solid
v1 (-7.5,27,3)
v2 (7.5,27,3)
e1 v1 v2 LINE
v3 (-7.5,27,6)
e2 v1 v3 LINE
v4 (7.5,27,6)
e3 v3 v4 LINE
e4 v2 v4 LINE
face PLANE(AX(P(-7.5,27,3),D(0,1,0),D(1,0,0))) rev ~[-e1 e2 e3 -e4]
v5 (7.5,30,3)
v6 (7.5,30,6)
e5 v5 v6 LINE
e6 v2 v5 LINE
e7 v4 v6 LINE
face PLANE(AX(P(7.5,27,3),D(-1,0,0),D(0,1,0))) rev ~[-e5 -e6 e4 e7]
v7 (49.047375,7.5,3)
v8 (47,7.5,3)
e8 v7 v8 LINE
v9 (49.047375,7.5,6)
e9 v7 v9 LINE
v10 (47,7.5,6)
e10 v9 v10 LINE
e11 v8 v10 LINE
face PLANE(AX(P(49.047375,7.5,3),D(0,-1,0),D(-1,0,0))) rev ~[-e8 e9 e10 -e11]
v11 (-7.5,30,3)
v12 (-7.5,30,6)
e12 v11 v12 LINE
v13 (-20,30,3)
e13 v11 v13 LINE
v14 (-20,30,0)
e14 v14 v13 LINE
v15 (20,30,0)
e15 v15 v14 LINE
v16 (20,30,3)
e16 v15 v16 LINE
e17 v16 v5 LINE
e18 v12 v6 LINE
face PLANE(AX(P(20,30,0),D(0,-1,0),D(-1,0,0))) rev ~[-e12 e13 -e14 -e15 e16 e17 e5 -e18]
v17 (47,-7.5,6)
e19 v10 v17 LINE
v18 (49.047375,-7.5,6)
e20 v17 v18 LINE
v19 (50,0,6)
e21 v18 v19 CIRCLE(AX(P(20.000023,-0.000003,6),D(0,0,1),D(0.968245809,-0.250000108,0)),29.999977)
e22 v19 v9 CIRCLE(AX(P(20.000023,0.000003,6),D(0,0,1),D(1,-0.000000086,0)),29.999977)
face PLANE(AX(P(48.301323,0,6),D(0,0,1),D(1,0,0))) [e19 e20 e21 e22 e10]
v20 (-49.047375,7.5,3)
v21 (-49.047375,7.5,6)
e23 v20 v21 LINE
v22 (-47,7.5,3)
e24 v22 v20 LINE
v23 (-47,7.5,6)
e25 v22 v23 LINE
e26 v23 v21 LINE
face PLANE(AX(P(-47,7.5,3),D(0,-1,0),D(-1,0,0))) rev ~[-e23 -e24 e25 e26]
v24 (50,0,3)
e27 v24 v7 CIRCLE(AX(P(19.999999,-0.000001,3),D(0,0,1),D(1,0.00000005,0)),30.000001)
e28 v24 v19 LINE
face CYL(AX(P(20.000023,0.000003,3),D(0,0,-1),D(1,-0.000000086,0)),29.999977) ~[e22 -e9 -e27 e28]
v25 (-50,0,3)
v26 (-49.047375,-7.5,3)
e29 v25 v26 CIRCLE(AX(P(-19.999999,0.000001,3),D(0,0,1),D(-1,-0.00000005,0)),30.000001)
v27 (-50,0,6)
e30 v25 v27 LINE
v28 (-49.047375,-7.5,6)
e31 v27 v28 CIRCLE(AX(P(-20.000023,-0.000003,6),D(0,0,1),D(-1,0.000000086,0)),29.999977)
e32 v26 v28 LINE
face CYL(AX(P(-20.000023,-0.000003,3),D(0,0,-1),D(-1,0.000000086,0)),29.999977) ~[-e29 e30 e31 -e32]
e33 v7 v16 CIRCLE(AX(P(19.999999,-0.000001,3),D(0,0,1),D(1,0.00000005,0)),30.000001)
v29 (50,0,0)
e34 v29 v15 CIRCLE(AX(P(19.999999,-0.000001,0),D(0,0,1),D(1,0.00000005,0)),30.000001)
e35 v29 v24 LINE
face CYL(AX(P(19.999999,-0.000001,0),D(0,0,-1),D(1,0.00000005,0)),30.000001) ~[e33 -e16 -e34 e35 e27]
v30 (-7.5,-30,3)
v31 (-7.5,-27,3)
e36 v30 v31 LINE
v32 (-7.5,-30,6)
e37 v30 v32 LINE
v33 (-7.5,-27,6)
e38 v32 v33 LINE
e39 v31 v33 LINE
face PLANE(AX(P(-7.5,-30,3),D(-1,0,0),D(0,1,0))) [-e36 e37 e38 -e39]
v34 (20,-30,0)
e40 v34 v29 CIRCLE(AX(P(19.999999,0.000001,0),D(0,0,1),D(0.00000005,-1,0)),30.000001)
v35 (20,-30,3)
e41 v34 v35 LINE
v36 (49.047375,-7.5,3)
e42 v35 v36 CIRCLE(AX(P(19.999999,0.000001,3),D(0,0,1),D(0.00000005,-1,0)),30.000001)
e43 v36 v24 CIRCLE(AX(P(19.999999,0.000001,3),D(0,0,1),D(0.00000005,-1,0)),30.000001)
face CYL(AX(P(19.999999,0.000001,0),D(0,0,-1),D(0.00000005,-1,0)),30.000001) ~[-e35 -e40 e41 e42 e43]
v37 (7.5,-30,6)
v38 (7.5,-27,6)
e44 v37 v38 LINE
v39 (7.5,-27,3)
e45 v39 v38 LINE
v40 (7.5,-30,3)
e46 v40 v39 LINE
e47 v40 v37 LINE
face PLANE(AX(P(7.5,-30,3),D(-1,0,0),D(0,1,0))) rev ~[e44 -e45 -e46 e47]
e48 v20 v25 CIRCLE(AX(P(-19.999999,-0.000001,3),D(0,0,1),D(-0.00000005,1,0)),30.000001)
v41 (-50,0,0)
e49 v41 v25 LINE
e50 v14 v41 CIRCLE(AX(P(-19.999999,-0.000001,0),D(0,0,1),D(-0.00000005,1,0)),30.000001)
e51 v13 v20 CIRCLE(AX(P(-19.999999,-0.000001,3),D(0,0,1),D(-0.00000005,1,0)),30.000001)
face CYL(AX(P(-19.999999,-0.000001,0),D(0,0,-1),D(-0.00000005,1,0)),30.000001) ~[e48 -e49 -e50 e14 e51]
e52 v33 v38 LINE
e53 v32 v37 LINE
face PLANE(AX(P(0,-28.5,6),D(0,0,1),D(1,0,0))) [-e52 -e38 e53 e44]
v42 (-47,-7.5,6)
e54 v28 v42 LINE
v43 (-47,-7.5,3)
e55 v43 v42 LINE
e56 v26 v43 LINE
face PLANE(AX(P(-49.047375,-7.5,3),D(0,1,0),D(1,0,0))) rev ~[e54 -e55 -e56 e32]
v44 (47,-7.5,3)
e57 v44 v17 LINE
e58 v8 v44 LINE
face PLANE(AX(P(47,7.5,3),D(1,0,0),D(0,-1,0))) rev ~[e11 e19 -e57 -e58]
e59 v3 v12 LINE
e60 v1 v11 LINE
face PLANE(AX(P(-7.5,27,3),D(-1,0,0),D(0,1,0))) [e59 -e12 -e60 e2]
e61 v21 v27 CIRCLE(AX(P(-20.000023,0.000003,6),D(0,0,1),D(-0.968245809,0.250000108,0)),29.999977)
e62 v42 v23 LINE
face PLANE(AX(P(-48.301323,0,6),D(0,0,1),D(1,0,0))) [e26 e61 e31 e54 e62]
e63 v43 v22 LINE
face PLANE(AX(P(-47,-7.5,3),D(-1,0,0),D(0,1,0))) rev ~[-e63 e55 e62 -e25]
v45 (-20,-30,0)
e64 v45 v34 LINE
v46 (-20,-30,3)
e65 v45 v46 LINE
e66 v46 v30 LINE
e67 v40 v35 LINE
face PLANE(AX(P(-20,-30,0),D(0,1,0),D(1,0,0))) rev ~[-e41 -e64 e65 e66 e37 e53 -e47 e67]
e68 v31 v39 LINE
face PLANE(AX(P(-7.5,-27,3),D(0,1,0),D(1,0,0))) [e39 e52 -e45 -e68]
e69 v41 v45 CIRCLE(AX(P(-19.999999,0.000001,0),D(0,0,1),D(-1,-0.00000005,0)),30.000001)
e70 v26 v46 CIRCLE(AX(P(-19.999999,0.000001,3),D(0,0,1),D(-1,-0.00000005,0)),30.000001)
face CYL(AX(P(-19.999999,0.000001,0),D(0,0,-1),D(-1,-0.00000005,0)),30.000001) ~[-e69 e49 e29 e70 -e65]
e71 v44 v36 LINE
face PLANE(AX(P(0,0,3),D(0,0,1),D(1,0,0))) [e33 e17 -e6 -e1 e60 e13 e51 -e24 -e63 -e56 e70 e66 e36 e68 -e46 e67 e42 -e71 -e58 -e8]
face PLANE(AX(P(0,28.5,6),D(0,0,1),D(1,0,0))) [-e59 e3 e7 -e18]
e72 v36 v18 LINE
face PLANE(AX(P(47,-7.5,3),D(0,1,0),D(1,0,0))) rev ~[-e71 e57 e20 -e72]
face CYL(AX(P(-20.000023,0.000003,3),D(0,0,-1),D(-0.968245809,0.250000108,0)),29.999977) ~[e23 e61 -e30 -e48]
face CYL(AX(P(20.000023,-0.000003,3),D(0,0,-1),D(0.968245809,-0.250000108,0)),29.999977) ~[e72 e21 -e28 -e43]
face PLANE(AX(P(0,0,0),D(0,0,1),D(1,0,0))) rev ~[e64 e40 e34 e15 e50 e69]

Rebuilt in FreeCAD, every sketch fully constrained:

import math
import FreeCAD as App
import Part
import Sketcher

V = App.Vector
Q = App.Units.Quantity

doc = App.newDocument("Part")
body = doc.addObject("PartDesign::Body", "Body")

# Sketch on XY plane
sketch1 = doc.addObject("Sketcher::SketchObject", "Sketch")
body.addObject(sketch1)
sketch1.AttachmentSupport = (doc.XY_Plane, [""])
sketch1.MapMode = "FlatFace"
sketch1.addGeometry(Part.LineSegment(V(20, 30, 0), V(-20, 30, 0)), False)
sketch1.addGeometry(Part.ArcOfCircle(Part.Circle(V(-19.999999, -0.000001, 0), V(0, 0, 1), 30.000001), math.radians(90.000003), math.radians(179.999997)), False)
sketch1.addGeometry(Part.ArcOfCircle(Part.Circle(V(-19.999999, 0.000001, 0), V(0, 0, 1), 30.000001), math.radians(-179.999997), math.radians(-90.000003)), False)
sketch1.addGeometry(Part.LineSegment(V(-20, -30, 0), V(20, -30, 0)), False)
sketch1.addGeometry(Part.ArcOfCircle(Part.Circle(V(19.999999, 0.000001, 0), V(0, 0, 1), 30.000001), math.radians(-89.999997), math.radians(-0.000003)), False)
sketch1.addGeometry(Part.ArcOfCircle(Part.Circle(V(19.999999, -0.000001, 0), V(0, 0, 1), 30.000001), math.radians(0.000003), math.radians(89.999997)), False)
sketch1.addConstraint(Sketcher.Constraint("Tangent", 0, 2, 1, 1))
sketch1.addConstraint(Sketcher.Constraint("Tangent", 1, 2, 2, 1))
sketch1.addConstraint(Sketcher.Constraint("Tangent", 2, 2, 3, 1))
sketch1.addConstraint(Sketcher.Constraint("Tangent", 3, 2, 4, 1))
sketch1.addConstraint(Sketcher.Constraint("Tangent", 4, 2, 5, 1))
sketch1.addConstraint(Sketcher.Constraint("Tangent", 5, 2, 0, 1))
sketch1.addConstraint(Sketcher.Constraint("Horizontal", 0))
sketch1.addConstraint(Sketcher.Constraint("Horizontal", 3))
sketch1.addConstraint(Sketcher.Constraint("Equal", 1, 2))
sketch1.addConstraint(Sketcher.Constraint("Equal", 2, 4))
sketch1.addConstraint(Sketcher.Constraint("Symmetric", 1, 3, 4, 3, -1, 1))
sketch1.addConstraint(Sketcher.Constraint("PointOnObject", 1, 2, -1))
sketch1.addConstraint(Sketcher.Constraint("PointOnObject", 4, 2, -1))
sketch1.addConstraint(Sketcher.Constraint("Radius", 1, Q("30.000001 mm")))
sketch1.addConstraint(Sketcher.Constraint("DistanceX", 0, 2, 0, 1, Q("40 mm")))
pad1 = doc.addObject("PartDesign::Pad", "Pad")
body.addObject(pad1)
pad1.Profile = sketch1
pad1.Length = 3

# Sketch on XY plane
sketch2 = doc.addObject("Sketcher::SketchObject", "Sketch001")
body.addObject(sketch2)
sketch2.AttachmentSupport = (doc.XY_Plane, [""])
sketch2.MapMode = "FlatFace"
sketch2.AttachmentOffset = App.Placement(V(0, 0, 3), App.Rotation())
sketch2.addGeometry(Part.LineSegment(V(-7.5, 30, 0), V(-7.5, 27, 0)), False)
sketch2.addGeometry(Part.LineSegment(V(-7.5, 27, 0), V(7.5, 27, 0)), False)
sketch2.addGeometry(Part.LineSegment(V(7.5, 27, 0), V(7.5, 30, 0)), False)
sketch2.addGeometry(Part.LineSegment(V(7.5, 30, 0), V(-7.5, 30, 0)), False)
sketch2.addGeometry(Part.LineSegment(V(-47, 7.5, 0), V(-49.047375, 7.5, 0)), False)
sketch2.addGeometry(Part.ArcOfCircle(Part.Circle(V(-20.000023, 0.000003, 0), V(0, 0, 1), 29.999977), math.radians(165.522481), math.radians(180.000005)), False)
sketch2.addGeometry(Part.ArcOfCircle(Part.Circle(V(-20.000023, -0.000003, 0), V(0, 0, 1), 29.999977), math.radians(179.999995), math.radians(194.477519)), False)
sketch2.addGeometry(Part.LineSegment(V(-49.047375, -7.5, 0), V(-47, -7.5, 0)), False)
sketch2.addGeometry(Part.LineSegment(V(-47, -7.5, 0), V(-47, 7.5, 0)), False)
sketch2.addGeometry(Part.LineSegment(V(-7.5, -27, 0), V(-7.5, -30, 0)), False)
sketch2.addGeometry(Part.LineSegment(V(-7.5, -30, 0), V(7.5, -30, 0)), False)
sketch2.addGeometry(Part.LineSegment(V(7.5, -30, 0), V(7.5, -27, 0)), False)
sketch2.addGeometry(Part.LineSegment(V(7.5, -27, 0), V(-7.5, -27, 0)), False)
sketch2.addGeometry(Part.ArcOfCircle(Part.Circle(V(20.000023, 0.000003, 0), V(0, 0, 1), 29.999977), math.radians(-0.000005), math.radians(14.477519)), False)
sketch2.addGeometry(Part.LineSegment(V(49.047375, 7.5, 0), V(47, 7.5, 0)), False)
sketch2.addGeometry(Part.LineSegment(V(47, 7.5, 0), V(47, -7.5, 0)), False)
sketch2.addGeometry(Part.LineSegment(V(47, -7.5, 0), V(49.047375, -7.5, 0)), False)
sketch2.addGeometry(Part.ArcOfCircle(Part.Circle(V(20.000023, -0.000003, 0), V(0, 0, 1), 29.999977), math.radians(-14.477519), math.radians(0.000005)), False)
sketch2.addConstraint(Sketcher.Constraint("Coincident", 0, 2, 1, 1))
sketch2.addConstraint(Sketcher.Constraint("Coincident", 1, 2, 2, 1))
sketch2.addConstraint(Sketcher.Constraint("Coincident", 2, 2, 3, 1))
sketch2.addConstraint(Sketcher.Constraint("Coincident", 3, 2, 0, 1))
sketch2.addConstraint(Sketcher.Constraint("Coincident", 4, 2, 5, 1))
sketch2.addConstraint(Sketcher.Constraint("Tangent", 5, 2, 6, 1))
sketch2.addConstraint(Sketcher.Constraint("Coincident", 6, 2, 7, 1))
sketch2.addConstraint(Sketcher.Constraint("Coincident", 7, 2, 8, 1))
sketch2.addConstraint(Sketcher.Constraint("Coincident", 8, 2, 4, 1))
sketch2.addConstraint(Sketcher.Constraint("Coincident", 9, 2, 10, 1))
sketch2.addConstraint(Sketcher.Constraint("Coincident", 10, 2, 11, 1))
sketch2.addConstraint(Sketcher.Constraint("Coincident", 11, 2, 12, 1))
sketch2.addConstraint(Sketcher.Constraint("Coincident", 12, 2, 9, 1))
sketch2.addConstraint(Sketcher.Constraint("Coincident", 13, 2, 14, 1))
sketch2.addConstraint(Sketcher.Constraint("Coincident", 14, 2, 15, 1))
sketch2.addConstraint(Sketcher.Constraint("Coincident", 15, 2, 16, 1))
sketch2.addConstraint(Sketcher.Constraint("Coincident", 16, 2, 17, 1))
sketch2.addConstraint(Sketcher.Constraint("Tangent", 17, 2, 13, 1))
sketch2.addConstraint(Sketcher.Constraint("Vertical", 0))
sketch2.addConstraint(Sketcher.Constraint("Horizontal", 1))
sketch2.addConstraint(Sketcher.Constraint("Vertical", 2))
sketch2.addConstraint(Sketcher.Constraint("Horizontal", 3))
sketch2.addConstraint(Sketcher.Constraint("Horizontal", 4))
sketch2.addConstraint(Sketcher.Constraint("Horizontal", 7))
sketch2.addConstraint(Sketcher.Constraint("Vertical", 8))
sketch2.addConstraint(Sketcher.Constraint("Vertical", 9))
sketch2.addConstraint(Sketcher.Constraint("Horizontal", 10))
sketch2.addConstraint(Sketcher.Constraint("Vertical", 11))
sketch2.addConstraint(Sketcher.Constraint("Horizontal", 12))
sketch2.addConstraint(Sketcher.Constraint("Horizontal", 14))
sketch2.addConstraint(Sketcher.Constraint("Vertical", 15))
sketch2.addConstraint(Sketcher.Constraint("Horizontal", 16))
sketch2.addConstraint(Sketcher.Constraint("Equal", 5, 6))
sketch2.addConstraint(Sketcher.Constraint("Equal", 6, 13))
sketch2.addConstraint(Sketcher.Constraint("Equal", 13, 17))
sketch2.addConstraint(Sketcher.Constraint("Symmetric", 5, 3, 13, 3, -1, 1))
sketch2.addConstraint(Sketcher.Constraint("Symmetric", 2, 2, 9, 2, -1, 1))
sketch2.addConstraint(Sketcher.Constraint("Symmetric", 0, 2, 11, 2, -1, 1))
sketch2.addConstraint(Sketcher.Constraint("Symmetric", 7, 2, 14, 2, -1, 1))
sketch2.addConstraint(Sketcher.Constraint("Symmetric", 4, 2, 13, 2, -2))
sketch2.addConstraint(Sketcher.Constraint("PointOnObject", 5, 2, -1))
sketch2.addConstraint(Sketcher.Constraint("PointOnObject", 17, 2, -1))
sketch2.addConstraint(Sketcher.Constraint("Horizontal", 7, 2, 15, 2))
sketch2.addConstraint(Sketcher.Constraint("Vertical", 3, 2, 9, 2))
sketch2.addConstraint(Sketcher.Constraint("Equal", 12, 8))
sketch2.addConstraint(Sketcher.Constraint("DistanceX", 1, 1, 1, 2, Q("15 mm")))
sketch2.addConstraint(Sketcher.Constraint("DistanceY", 0, 2, 0, 1, Q("3 mm")))
sketch2.addConstraint(Sketcher.Constraint("DistanceY", -1, 1, 0, 2, Q("27 mm")))
sketch2.addConstraint(Sketcher.Constraint("DistanceX", 5, 2, -1, 1, Q("50 mm")))
sketch2.addConstraint(Sketcher.Constraint("DistanceX", 7, 2, -1, 1, Q("47 mm")))
sketch2.addConstraint(Sketcher.Constraint("Radius", 5, Q("29.999977 mm")))
pad2 = doc.addObject("PartDesign::Pad", "Pad001")
body.addObject(pad2)
pad2.Profile = sketch2
pad2.Length = 3

doc.recompute()
